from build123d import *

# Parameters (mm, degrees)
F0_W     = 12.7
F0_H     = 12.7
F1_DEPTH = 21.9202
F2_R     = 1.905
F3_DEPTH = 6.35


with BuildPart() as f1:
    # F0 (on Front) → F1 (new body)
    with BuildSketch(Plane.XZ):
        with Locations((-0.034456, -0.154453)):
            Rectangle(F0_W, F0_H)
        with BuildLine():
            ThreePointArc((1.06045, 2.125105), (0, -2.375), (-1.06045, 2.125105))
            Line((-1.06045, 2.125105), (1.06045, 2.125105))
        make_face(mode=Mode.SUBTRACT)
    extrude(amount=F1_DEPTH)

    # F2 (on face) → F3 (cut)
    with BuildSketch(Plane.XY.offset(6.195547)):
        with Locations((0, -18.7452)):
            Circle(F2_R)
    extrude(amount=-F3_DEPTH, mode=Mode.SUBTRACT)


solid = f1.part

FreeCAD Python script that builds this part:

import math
import FreeCAD as App
import Part
import Sketcher
Q = App.Units.Quantity


def add_polygon(sketch, points):
    """Adds a closed chain of lines whose ends are joined by coincident constraints."""
    first, n = sketch.GeometryCount, len(points)
    for a, b in zip(points, points[1:] + points[:1]):
        sketch.addGeometry(Part.LineSegment(App.Vector(*a, 0), App.Vector(*b, 0)), False)
    for i in range(n):
        sketch.addConstraint(Sketcher.Constraint("Coincident", first + i, 2, first + (i + 1) % n, 1))

doc = App.newDocument("Part")
body = doc.addObject("PartDesign::Body", "Body")

sketch1 = body.newObject("Sketcher::SketchObject", "Sketch")
sketch1.AttachmentSupport = (doc.getObject("XZ_Plane"), [""])
sketch1.MapMode = "FlatFace"
add_polygon(sketch1, [(-6.384456, 6.195547), (-6.384456, -6.504453), (6.315544, -6.504453), (6.315544, 6.195547)])
sketch1.addGeometry(Part.LineSegment(App.Vector(-1.06045, 2.125105, 0), App.Vector(1.06045, 2.125105, 0)), False)
sketch1.addGeometry(Part.ArcOfCircle(Part.Circle(App.Vector(0, 0, 0), App.Vector(0, 0, 1), 2.375), math.radians(116.519685), math.radians(423.480315)), False)
sketch1.addConstraint(Sketcher.Constraint("Coincident", 4, 1, 5, 1))
sketch1.addConstraint(Sketcher.Constraint("Coincident", 5, 2, 4, 2))
sketch1.addConstraint(Sketcher.Constraint("Vertical", 0))
sketch1.addConstraint(Sketcher.Constraint("Horizontal", 1))
sketch1.addConstraint(Sketcher.Constraint("Vertical", 2))
sketch1.addConstraint(Sketcher.Constraint("Horizontal", 3))
sketch1.addConstraint(Sketcher.Constraint("Horizontal", 4))
sketch1.addConstraint(Sketcher.Constraint("Coincident", 5, 3, -1, 1))
sketch1.addConstraint(Sketcher.Constraint("Equal", 3, 0))
sketch1.addConstraint(Sketcher.Constraint("DistanceX", 1, 1, 1, 2, Q("0.5 in")))
sketch1.addConstraint(Sketcher.Constraint("Radius", 5, 2.375))
sketch1.addConstraint(Sketcher.Constraint("DistanceX", 4, 1, 4, 2, Q("0.0835 in")))
sketch1.addConstraint(Sketcher.Constraint("DistanceY", 5, 2, 2, 2, 4.070442))
sketch1.addConstraint(Sketcher.Constraint("DistanceX", 0, 2, -1, 1, 6.384456))
pad1 = body.newObject("PartDesign::Pad", "Pad")
pad1.Profile = sketch1
pad1.Length = Q("0.863 in")

sketch2 = body.newObject("Sketcher::SketchObject", "Sketch001")
sketch2.AttachmentSupport = (doc.getObject("XY_Plane"), [""])
sketch2.MapMode = "FlatFace"
sketch2.AttachmentOffset = App.Placement(App.Vector(0, 0, 6.195547), App.Rotation())
sketch2.addGeometry(Part.Circle(App.Vector(0, -18.7452, 0), App.Vector(0, 0, 1), 1.905), False)
sketch2.addConstraint(Sketcher.Constraint("PointOnObject", 0, 3, -2))
sketch2.addConstraint(Sketcher.Constraint("Diameter", 0, Q("0.15 in")))
sketch2.addConstraint(Sketcher.Constraint("DistanceY", 0, 3, -1, 1, Q("0.738 in")))
pocket1 = body.newObject("PartDesign::Pocket", "Pocket")
pocket1.Profile = sketch2
pocket1.Length = Q("0.25 in")

doc.recompute()
